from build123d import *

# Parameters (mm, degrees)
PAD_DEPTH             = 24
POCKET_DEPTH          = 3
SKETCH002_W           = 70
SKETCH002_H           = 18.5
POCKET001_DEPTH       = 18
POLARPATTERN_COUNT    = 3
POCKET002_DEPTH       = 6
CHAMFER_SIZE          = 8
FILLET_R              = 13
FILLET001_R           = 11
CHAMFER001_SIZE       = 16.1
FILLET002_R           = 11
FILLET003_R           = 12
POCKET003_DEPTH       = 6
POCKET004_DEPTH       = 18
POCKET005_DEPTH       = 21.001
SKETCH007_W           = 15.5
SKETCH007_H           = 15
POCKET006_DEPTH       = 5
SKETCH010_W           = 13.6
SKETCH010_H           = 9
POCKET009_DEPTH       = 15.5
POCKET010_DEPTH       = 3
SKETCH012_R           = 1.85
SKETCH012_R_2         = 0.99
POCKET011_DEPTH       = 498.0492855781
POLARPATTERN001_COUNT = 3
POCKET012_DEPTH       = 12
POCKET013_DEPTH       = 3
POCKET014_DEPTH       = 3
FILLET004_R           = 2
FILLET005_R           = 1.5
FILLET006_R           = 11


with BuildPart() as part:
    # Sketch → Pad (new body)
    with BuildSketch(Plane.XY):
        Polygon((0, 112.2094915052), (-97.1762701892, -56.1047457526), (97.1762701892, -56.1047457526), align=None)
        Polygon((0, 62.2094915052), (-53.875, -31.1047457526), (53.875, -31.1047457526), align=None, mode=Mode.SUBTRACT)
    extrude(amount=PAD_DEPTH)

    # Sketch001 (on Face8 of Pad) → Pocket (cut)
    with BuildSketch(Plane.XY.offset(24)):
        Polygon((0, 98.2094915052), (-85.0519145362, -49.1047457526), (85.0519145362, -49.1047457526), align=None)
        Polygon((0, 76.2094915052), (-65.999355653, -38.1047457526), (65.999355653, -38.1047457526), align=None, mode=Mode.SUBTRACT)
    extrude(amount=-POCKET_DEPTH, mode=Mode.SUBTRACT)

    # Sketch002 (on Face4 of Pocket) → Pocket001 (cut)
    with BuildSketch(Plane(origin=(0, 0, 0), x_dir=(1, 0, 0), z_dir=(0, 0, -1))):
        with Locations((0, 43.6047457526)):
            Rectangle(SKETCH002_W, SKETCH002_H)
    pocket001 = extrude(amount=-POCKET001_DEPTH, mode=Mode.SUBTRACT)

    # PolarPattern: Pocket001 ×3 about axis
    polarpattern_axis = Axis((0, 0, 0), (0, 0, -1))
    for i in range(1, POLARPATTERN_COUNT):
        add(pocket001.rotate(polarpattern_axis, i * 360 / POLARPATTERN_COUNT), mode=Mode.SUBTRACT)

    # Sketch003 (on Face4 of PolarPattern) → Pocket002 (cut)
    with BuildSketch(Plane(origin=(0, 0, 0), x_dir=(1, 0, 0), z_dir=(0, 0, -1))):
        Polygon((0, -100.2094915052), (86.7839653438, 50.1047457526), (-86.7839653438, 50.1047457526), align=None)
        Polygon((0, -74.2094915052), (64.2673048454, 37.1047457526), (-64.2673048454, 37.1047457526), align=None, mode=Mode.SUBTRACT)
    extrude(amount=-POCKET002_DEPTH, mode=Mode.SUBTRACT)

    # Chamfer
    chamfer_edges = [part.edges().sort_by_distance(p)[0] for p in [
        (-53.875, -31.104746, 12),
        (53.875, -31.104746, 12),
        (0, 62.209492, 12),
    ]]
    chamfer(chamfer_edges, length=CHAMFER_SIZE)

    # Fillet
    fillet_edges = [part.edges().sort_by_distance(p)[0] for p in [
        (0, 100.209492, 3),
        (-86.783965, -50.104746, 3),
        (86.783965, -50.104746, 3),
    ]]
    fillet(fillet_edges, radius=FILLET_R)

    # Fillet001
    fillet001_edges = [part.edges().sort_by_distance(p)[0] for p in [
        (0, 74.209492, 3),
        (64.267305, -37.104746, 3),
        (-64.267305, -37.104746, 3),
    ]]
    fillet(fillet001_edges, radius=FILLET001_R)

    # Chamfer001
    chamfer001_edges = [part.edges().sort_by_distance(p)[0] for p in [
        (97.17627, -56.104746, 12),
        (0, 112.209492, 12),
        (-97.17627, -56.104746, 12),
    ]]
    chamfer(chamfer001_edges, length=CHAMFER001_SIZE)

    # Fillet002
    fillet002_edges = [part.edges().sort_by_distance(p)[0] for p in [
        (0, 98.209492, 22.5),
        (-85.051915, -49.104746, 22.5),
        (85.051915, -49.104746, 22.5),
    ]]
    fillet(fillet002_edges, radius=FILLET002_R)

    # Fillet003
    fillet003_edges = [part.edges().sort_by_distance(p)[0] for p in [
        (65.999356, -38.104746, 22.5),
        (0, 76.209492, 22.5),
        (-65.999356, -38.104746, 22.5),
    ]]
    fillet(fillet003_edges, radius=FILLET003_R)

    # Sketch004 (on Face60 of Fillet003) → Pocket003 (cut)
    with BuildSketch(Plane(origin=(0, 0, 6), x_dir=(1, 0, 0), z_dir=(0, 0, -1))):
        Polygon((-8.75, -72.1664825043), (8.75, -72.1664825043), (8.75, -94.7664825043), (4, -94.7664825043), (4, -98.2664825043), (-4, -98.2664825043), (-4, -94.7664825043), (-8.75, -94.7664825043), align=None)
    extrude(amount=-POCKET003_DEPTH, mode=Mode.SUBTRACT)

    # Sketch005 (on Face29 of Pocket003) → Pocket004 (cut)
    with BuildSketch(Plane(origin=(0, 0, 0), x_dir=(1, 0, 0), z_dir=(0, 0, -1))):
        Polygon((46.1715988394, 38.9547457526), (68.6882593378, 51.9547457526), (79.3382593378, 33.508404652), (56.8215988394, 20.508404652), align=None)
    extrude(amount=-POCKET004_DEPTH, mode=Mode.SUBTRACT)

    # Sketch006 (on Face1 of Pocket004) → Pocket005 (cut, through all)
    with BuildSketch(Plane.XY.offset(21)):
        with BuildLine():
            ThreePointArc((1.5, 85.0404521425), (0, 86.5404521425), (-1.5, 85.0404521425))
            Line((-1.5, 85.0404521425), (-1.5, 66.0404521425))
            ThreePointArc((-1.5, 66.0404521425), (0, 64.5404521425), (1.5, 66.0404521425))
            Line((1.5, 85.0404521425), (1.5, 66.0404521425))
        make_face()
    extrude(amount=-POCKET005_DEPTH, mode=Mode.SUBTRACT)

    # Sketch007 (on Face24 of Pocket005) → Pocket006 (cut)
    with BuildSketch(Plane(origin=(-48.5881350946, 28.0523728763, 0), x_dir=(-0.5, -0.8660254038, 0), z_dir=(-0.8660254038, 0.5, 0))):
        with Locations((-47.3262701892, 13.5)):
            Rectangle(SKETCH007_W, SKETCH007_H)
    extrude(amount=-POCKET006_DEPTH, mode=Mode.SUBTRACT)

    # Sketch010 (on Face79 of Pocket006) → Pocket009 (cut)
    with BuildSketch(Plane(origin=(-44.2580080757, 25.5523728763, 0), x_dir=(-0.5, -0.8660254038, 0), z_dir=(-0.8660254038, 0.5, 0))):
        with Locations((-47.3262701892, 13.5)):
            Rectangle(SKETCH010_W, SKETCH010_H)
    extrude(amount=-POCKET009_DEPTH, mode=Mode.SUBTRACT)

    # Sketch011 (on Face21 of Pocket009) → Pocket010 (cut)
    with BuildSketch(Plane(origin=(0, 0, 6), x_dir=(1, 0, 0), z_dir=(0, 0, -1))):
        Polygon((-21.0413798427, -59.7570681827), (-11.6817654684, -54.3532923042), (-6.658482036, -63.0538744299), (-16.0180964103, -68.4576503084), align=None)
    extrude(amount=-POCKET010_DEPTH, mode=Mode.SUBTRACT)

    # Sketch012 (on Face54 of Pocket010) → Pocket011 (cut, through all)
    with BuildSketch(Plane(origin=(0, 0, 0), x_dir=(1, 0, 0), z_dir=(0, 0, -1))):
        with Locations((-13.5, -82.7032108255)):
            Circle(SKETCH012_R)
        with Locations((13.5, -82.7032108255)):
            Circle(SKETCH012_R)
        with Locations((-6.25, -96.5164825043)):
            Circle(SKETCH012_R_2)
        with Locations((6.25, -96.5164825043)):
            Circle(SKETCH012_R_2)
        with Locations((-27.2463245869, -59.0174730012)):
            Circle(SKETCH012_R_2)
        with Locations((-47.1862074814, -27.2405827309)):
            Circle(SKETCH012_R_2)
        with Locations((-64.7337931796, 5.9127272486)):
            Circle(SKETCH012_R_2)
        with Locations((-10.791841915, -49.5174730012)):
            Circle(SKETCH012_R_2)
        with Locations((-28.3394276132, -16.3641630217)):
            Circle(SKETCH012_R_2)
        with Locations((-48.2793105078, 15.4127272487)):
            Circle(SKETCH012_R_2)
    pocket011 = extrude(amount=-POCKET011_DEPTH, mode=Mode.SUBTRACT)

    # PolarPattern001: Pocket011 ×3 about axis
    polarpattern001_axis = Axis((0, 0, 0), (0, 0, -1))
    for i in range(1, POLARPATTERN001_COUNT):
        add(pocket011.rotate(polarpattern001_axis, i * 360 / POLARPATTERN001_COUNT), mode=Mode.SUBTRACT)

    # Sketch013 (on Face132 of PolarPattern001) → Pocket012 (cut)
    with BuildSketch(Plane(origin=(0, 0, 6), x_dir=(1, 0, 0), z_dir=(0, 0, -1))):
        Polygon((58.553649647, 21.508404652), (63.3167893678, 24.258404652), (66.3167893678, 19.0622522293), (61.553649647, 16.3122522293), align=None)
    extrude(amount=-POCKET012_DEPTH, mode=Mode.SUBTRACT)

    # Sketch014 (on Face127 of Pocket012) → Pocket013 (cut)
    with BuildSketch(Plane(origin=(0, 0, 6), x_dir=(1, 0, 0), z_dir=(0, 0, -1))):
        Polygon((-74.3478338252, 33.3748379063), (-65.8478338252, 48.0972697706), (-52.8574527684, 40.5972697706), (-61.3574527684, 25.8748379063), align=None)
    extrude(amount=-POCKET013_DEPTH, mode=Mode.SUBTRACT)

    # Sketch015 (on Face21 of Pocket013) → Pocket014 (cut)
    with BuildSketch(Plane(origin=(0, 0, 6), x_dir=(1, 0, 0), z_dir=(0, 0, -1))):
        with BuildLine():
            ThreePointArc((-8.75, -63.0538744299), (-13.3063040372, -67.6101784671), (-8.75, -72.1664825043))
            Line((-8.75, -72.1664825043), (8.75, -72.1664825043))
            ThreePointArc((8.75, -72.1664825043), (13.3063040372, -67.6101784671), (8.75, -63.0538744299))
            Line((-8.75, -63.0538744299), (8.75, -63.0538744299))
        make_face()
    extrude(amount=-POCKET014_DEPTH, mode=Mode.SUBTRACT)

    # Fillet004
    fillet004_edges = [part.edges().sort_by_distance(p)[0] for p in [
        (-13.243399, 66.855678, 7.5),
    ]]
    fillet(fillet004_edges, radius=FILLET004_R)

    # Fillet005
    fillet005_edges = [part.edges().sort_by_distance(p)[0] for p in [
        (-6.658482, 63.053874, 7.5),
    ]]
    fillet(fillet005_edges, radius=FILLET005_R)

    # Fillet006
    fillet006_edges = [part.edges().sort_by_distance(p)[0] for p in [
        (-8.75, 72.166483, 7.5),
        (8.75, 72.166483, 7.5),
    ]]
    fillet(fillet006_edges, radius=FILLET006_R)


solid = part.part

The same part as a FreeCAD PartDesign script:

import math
import FreeCAD as App
import Part
import Sketcher

V = App.Vector
Q = App.Units.Quantity


def edges_at(feature, points):
    """Names of the edges that pass closest to the given points."""
    edges = feature.Shape.Edges
    near = lambda p: min(range(len(edges)), key=lambda i: edges[i].distToShape(Part.Vertex(*p))[0])
    return sorted({f"Edge{near(p) + 1}" for p in points})


def add_polygon(sketch, points):
    """Adds a closed chain of lines whose ends are joined by coincident constraints."""
    first, n = sketch.GeometryCount, len(points)
    for a, b in zip(points, points[1:] + points[:1]):
        sketch.addGeometry(Part.LineSegment(App.Vector(*a, 0), App.Vector(*b, 0)), False)
    for i in range(n):
        sketch.addConstraint(Sketcher.Constraint("Coincident", first + i, 2, first + (i + 1) % n, 1))

doc = App.newDocument("Part")
body = doc.addObject("PartDesign::Body", "Body")

# Sketch on XY plane
sketch1 = doc.addObject("Sketcher::SketchObject", "Sketch")
body.addObject(sketch1)
sketch1.AttachmentSupport = (doc.XY_Plane, [""])
sketch1.MapMode = "FlatFace"
add_polygon(sketch1, [(0, 112), (-97, -56), (97, -56)])  # lines 0-2
add_polygon(sketch1, [(-54, -31), (0, 62), (54, -31)])  # lines 3-5
sketch1.addConstraint(Sketcher.Constraint("Horizontal", 1))
sketch1.addConstraint(Sketcher.Constraint("Horizontal", 5))
sketch1.addConstraint(Sketcher.Constraint("PointOnObject", 2, 2, -2))
sketch1.addConstraint(Sketcher.Constraint("PointOnObject", 3, 2, -2))
sketch1.addConstraint(Sketcher.Constraint("Parallel", 0, 3))
sketch1.addConstraint(Sketcher.Constraint("Parallel", 2, 4))
sketch1.addConstraint(Sketcher.Constraint("Equal", 0, 2))
sketch1.addConstraint(Sketcher.Constraint("Angle", 0, Q("-120 deg")))
sketch1.addConstraint(Sketcher.Constraint("DistanceY", 3, 2, 2, 2, Q("50 mm")))
sketch1.addConstraint(Sketcher.Constraint("DistanceY", 1, 2, 4, 2, Q("25 mm")))
sketch1.addConstraint(Sketcher.Constraint("DistanceX", 5, 2, 5, 1, Q("107.75 mm")))
sketch1.addConstraint(Sketcher.Constraint("DistanceY", -1, 1, 2, 2, Q("112.209492 mm")))
pad1 = doc.addObject("PartDesign::Pad", "Pad")
body.addObject(pad1)
pad1.Profile = sketch1
pad1.Length = 24

# Sketch on XY plane
sketch2 = doc.addObject("Sketcher::SketchObject", "Sketch001")
body.addObject(sketch2)
sketch2.AttachmentSupport = (doc.XY_Plane, [""])
sketch2.MapMode = "FlatFace"
sketch2.AttachmentOffset = App.Placement(V(0, 0, 24), App.Rotation())
add_polygon(sketch2, [(0, 98), (-85, -49), (85, -49)])  # lines 0-2
add_polygon(sketch2, [(-66, -38), (0, 76), (66, -38)])  # lines 3-5
sketch2.addConstraint(Sketcher.Constraint("Horizontal", 1))
sketch2.addConstraint(Sketcher.Constraint("Horizontal", 5))
sketch2.addConstraint(Sketcher.Constraint("PointOnObject", 2, 2, -2))
sketch2.addConstraint(Sketcher.Constraint("PointOnObject", 3, 2, -2))
sketch2.addConstraint(Sketcher.Constraint("Parallel", 0, 3))
sketch2.addConstraint(Sketcher.Constraint("Parallel", 2, 4))
sketch2.addConstraint(Sketcher.Constraint("Equal", 0, 2))
sketch2.addConstraint(Sketcher.Constraint("Angle", 0, Q("-120 deg")))
sketch2.addConstraint(Sketcher.Constraint("DistanceY", 3, 2, 2, 2, Q("22 mm")))
sketch2.addConstraint(Sketcher.Constraint("DistanceY", 1, 2, 4, 2, Q("11 mm")))
sketch2.addConstraint(Sketcher.Constraint("DistanceX", 1, 1, 1, 2, Q("170.103829 mm")))
sketch2.addConstraint(Sketcher.Constraint("DistanceY", -1, 1, 2, 2, Q("98.209492 mm")))
pocket1 = doc.addObject("PartDesign::Pocket", "Pocket")
body.addObject(pocket1)
pocket1.Profile = sketch2
pocket1.Length = 3

# Sketch on XY plane
sketch3 = doc.addObject("Sketcher::SketchObject", "Sketch002")
body.addObject(sketch3)
sketch3.AttachmentSupport = (doc.XY_Plane, [""])
sketch3.MapMode = "FlatFace"
add_polygon(sketch3, [(-35, -53), (-35, -34), (35, -34), (35, -53)])  # lines 0-3
sketch3.addConstraint(Sketcher.Constraint("Vertical", 0))
sketch3.addConstraint(Sketcher.Constraint("Horizontal", 1))
sketch3.addConstraint(Sketcher.Constraint("Vertical", 2))
sketch3.addConstraint(Sketcher.Constraint("Horizontal", 3))
sketch3.addConstraint(Sketcher.Constraint("DistanceX", 1, 1, 1, 2, Q("70 mm")))
sketch3.addConstraint(Sketcher.Constraint("DistanceY", 0, 1, 0, 2, Q("18.5 mm")))
sketch3.addConstraint(Sketcher.Constraint("DistanceX", 0, 2, -1, 1, Q("35 mm")))
sketch3.addConstraint(Sketcher.Constraint("DistanceY", 0, 2, -1, 1, Q("34.354746 mm")))
pocket2 = doc.addObject("PartDesign::Pocket", "Pocket001")
body.addObject(pocket2)
pocket2.Profile = sketch3
pocket2.Length = 18
pocket2.Reversed = True
doc.recompute()

polarpattern = doc.addObject("PartDesign::PolarPattern", "PolarPattern")
body.addObject(polarpattern)
polarpattern.Originals = [pocket2]
polarpattern.Axis = (doc.Z_Axis, [""])
polarpattern.Angle = 360
polarpattern.Occurrences = 3
body.Tip = polarpattern

# Sketch on XY plane
sketch4 = doc.addObject("Sketcher::SketchObject", "Sketch003")
body.addObject(sketch4)
sketch4.AttachmentSupport = (doc.XY_Plane, [""])
sketch4.MapMode = "FlatFace"
add_polygon(sketch4, [(0, 100), (87, -50), (-87, -50)])  # lines 0-2
add_polygon(sketch4, [(64, -37), (0, 74), (-64, -37)])  # lines 3-5
sketch4.addConstraint(Sketcher.Constraint("Horizontal", 1))
sketch4.addConstraint(Sketcher.Constraint("Horizontal", 5))
sketch4.addConstraint(Sketcher.Constraint("PointOnObject", 2, 2, -2))
sketch4.addConstraint(Sketcher.Constraint("PointOnObject", 3, 2, -2))
sketch4.addConstraint(Sketcher.Constraint("Parallel", 0, 3))
sketch4.addConstraint(Sketcher.Constraint("Parallel", 2, 4))
sketch4.addConstraint(Sketcher.Constraint("Equal", 0, 2))
sketch4.addConstraint(Sketcher.Constraint("Angle", 0, Q("-60 deg")))
sketch4.addConstraint(Sketcher.Constraint("DistanceY", 3, 2, 2, 2, Q("26 mm")))
sketch4.addConstraint(Sketcher.Constraint("DistanceY", 1, 2, 4, 2, Q("13 mm")))
sketch4.addConstraint(Sketcher.Constraint("DistanceX", 1, 2, 1, 1, Q("173.567931 mm")))
sketch4.addConstraint(Sketcher.Constraint("DistanceY", -1, 1, 2, 2, Q("100.209492 mm")))
pocket3 = doc.addObject("PartDesign::Pocket", "Pocket002")
body.addObject(pocket3)
pocket3.Profile = sketch4
pocket3.Length = 6
pocket3.Reversed = True
doc.recompute()

chamfer = doc.addObject("PartDesign::Chamfer", "Chamfer")
body.addObject(chamfer)
chamfer.Base = (pocket3, edges_at(pocket3, [(-53.875, -31.105, 12), (53.875, -31.105, 12), (0, 62.209, 12)]))
chamfer.Size = 8
doc.recompute()

fillet = doc.addObject("PartDesign::Fillet", "Fillet")
body.addObject(fillet)
fillet.Base = (chamfer, edges_at(chamfer, [(0, 100.209, 3), (-86.784, -50.105, 3), (86.784, -50.105, 3)]))
fillet.Radius = 13
doc.recompute()

fillet2 = doc.addObject("PartDesign::Fillet", "Fillet001")
body.addObject(fillet2)
fillet2.Base = (fillet, edges_at(fillet, [(0, 74.209, 3), (64.267, -37.105, 3), (-64.267, -37.105, 3)]))
fillet2.Radius = 11
doc.recompute()

chamfer2 = doc.addObject("PartDesign::Chamfer", "Chamfer001")
body.addObject(chamfer2)
chamfer2.Base = (fillet2, edges_at(fillet2, [(97.176, -56.105, 12), (0, 112.209, 12), (-97.176, -56.105, 12)]))
chamfer2.Size = 16.1
doc.recompute()

fillet3 = doc.addObject("PartDesign::Fillet", "Fillet002")
body.addObject(fillet3)
fillet3.Base = (chamfer2, edges_at(chamfer2, [(0, 98.209, 22.5), (-85.052, -49.105, 22.5), (85.052, -49.105, 22.5)]))
fillet3.Radius = 11
doc.recompute()

fillet4 = doc.addObject("PartDesign::Fillet", "Fillet003")
body.addObject(fillet4)
fillet4.Base = (fillet3, edges_at(fillet3, [(65.999, -38.105, 22.5), (0, 76.209, 22.5), (-65.999, -38.105, 22.5)]))
fillet4.Radius = 12

# Sketch on XY plane
sketch5 = doc.addObject("Sketcher::SketchObject", "Sketch004")
body.addObject(sketch5)
sketch5.AttachmentSupport = (doc.XY_Plane, [""])
sketch5.MapMode = "FlatFace"
sketch5.AttachmentOffset = App.Placement(V(0, 0, 6), App.Rotation())
add_polygon(sketch5, [(8.8, 72.2), (-8.8, 72.2), (-8.8, 94.8), (-4, 94.8), (-4, 98.3), (4, 98.3), (4, 94.8), (8.8, 94.8)])  # lines 0-7
sketch5.addConstraint(Sketcher.Constraint("Horizontal", 0))
sketch5.addConstraint(Sketcher.Constraint("Vertical", 1))
sketch5.addConstraint(Sketcher.Constraint("Horizontal", 2))
sketch5.addConstraint(Sketcher.Constraint("Vertical", 3))
sketch5.addConstraint(Sketcher.Constraint("Horizontal", 4))
sketch5.addConstraint(Sketcher.Constraint("Vertical", 5))
sketch5.addConstraint(Sketcher.Constraint("Horizontal", 6))
sketch5.addConstraint(Sketcher.Constraint("Vertical", 7))
sketch5.addConstraint(Sketcher.Constraint("Symmetric", 2, 2, 5, 2, -2))
sketch5.addConstraint(Sketcher.Constraint("Equal", 2, 6))
sketch5.addConstraint(Sketcher.Constraint("DistanceX", 4, 1, 4, 2, Q("8 mm")))
sketch5.addConstraint(Sketcher.Constraint("DistanceX", 0, 2, 0, 1, Q("17.5 mm")))
sketch5.addConstraint(Sketcher.Constraint("DistanceY", 1, 1, 1, 2, Q("22.6 mm")))
sketch5.addConstraint(Sketcher.Constraint("DistanceY", 3, 1, 3, 2, Q("3.5 mm")))
sketch5.addConstraint(Sketcher.Constraint("DistanceY", -1, 1, 0, 2, Q("72.166483 mm")))
pocket4 = doc.addObject("PartDesign::Pocket", "Pocket003")
body.addObject(pocket4)
pocket4.Profile = sketch5
pocket4.Length = 6
pocket4.Reversed = True

# Sketch on XY plane
sketch6 = doc.addObject("Sketcher::SketchObject", "Sketch005")
body.addObject(sketch6)
sketch6.AttachmentSupport = (doc.XY_Plane, [""])
sketch6.MapMode = "FlatFace"
add_polygon(sketch6, [(69, -52), (46, -39), (57, -21), (79, -34)])  # lines 0-3
sketch6.addConstraint(Sketcher.Constraint("Perpendicular", 0, 1))
sketch6.addConstraint(Sketcher.Constraint("Perpendicular", 1, 2))
sketch6.addConstraint(Sketcher.Constraint("Perpendicular", 2, 3))
sketch6.addConstraint(Sketcher.Constraint("Angle", 0, Q("150 deg")))
sketch6.addConstraint(Sketcher.Constraint("Distance", 0, Q("26 mm")))
sketch6.addConstraint(Sketcher.Constraint("Distance", 1, Q("21.3 mm")))
sketch6.addConstraint(Sketcher.Constraint("DistanceX", -1, 1, 0, 2, Q("46.171599 mm")))
sketch6.addConstraint(Sketcher.Constraint("DistanceY", 0, 2, -1, 1, Q("38.954746 mm")))
pocket5 = doc.addObject("PartDesign::Pocket", "Pocket004")
body.addObject(pocket5)
pocket5.Profile = sketch6
pocket5.Length = 18
pocket5.Reversed = True

# Sketch on XY plane
sketch7 = doc.addObject("Sketcher::SketchObject", "Sketch006")
body.addObject(sketch7)
sketch7.AttachmentSupport = (doc.XY_Plane, [""])
sketch7.MapMode = "FlatFace"
sketch7.AttachmentOffset = App.Placement(V(0, 0, 21), App.Rotation())
sketch7.addGeometry(Part.ArcOfCircle(Part.Circle(V(0, 85, 0), V(0, 0, 1), 1.5), math.radians(0), math.radians(180)), False)
sketch7.addGeometry(Part.LineSegment(V(-1.5, 85, 0), V(-1.5, 66, 0)), False)
sketch7.addGeometry(Part.ArcOfCircle(Part.Circle(V(0, 66, 0), V(0, 0, 1), 1.5), math.radians(180), math.radians(360)), False)
sketch7.addGeometry(Part.LineSegment(V(1.5, 66, 0), V(1.5, 85, 0)), False)
sketch7.addConstraint(Sketcher.Constraint("Tangent", 0, 2, 1, 1))
sketch7.addConstraint(Sketcher.Constraint("Tangent", 1, 2, 2, 1))
sketch7.addConstraint(Sketcher.Constraint("Tangent", 2, 2, 3, 1))
sketch7.addConstraint(Sketcher.Constraint("Tangent", 3, 2, 0, 1))
sketch7.addConstraint(Sketcher.Constraint("Vertical", 1))
sketch7.addConstraint(Sketcher.Constraint("Vertical", 3))
sketch7.addConstraint(Sketcher.Constraint("PointOnObject", 0, 3, -2))
sketch7.addConstraint(Sketcher.Constraint("Radius", 0, Q("1.5 mm")))
sketch7.addConstraint(Sketcher.Constraint("DistanceY", 1, 2, 1, 1, Q("19 mm")))
sketch7.addConstraint(Sketcher.Constraint("DistanceY", -1, 1, 0, 3, Q("85.040452 mm")))
pocket6 = doc.addObject("PartDesign::Pocket", "Pocket005")
body.addObject(pocket6)
pocket6.Profile = sketch7
pocket6.Type = "ThroughAll"

# Sketch on an angled plane
sketch8 = doc.addObject("Sketcher::SketchObject", "Sketch007")
body.addObject(sketch8)
sketch8.Placement = App.Placement(V(-48.588135, 28.052373, 0), App.Rotation(V(-0.5, -0.866025404, 0), V(0, 0, 1), V(-0.866025404, 0.5, 0), "ZXY"))
add_polygon(sketch8, [(-55, 21), (-55, 6), (-40, 6), (-40, 21)])  # lines 0-3
sketch8.addConstraint(Sketcher.Constraint("Vertical", 0))
sketch8.addConstraint(Sketcher.Constraint("Horizontal", 1))
sketch8.addConstraint(Sketcher.Constraint("Vertical", 2))
sketch8.addConstraint(Sketcher.Constraint("Horizontal", 3))
sketch8.addConstraint(Sketcher.Constraint("DistanceY", 0, 2, 0, 1, Q("15 mm")))
sketch8.addConstraint(Sketcher.Constraint("DistanceX", 1, 1, 1, 2, Q("15.5 mm")))
sketch8.addConstraint(Sketcher.Constraint("DistanceY", -1, 1, 0, 2, Q("6 mm")))
sketch8.addConstraint(Sketcher.Constraint("DistanceX", 0, 2, -1, 1, Q("55.07627 mm")))
pocket7 = doc.addObject("PartDesign::Pocket", "Pocket006")
body.addObject(pocket7)
pocket7.Profile = sketch8
pocket7.Length = 5

# Sketch on an angled plane
sketch9 = doc.addObject("Sketcher::SketchObject", "Sketch008")
body.addObject(sketch9)
sketch9.Placement = App.Placement(V(-44.258008, 25.552373, 0), App.Rotation(V(-0.5, -0.866025404, 0), V(0, 0, 1), V(-0.866025404, 0.5, 0), "ZXY"))
add_polygon(sketch9, [(-54, 18), (-54, 9), (-41, 9), (-41, 18)])  # lines 0-3
sketch9.addConstraint(Sketcher.Constraint("Vertical", 0))
sketch9.addConstraint(Sketcher.Constraint("Horizontal", 1))
sketch9.addConstraint(Sketcher.Constraint("Vertical", 2))
sketch9.addConstraint(Sketcher.Constraint("Horizontal", 3))
sketch9.addConstraint(Sketcher.Constraint("DistanceY", 0, 2, 0, 1, Q("9 mm")))
sketch9.addConstraint(Sketcher.Constraint("DistanceX", 1, 1, 1, 2, Q("13.6 mm")))
sketch9.addConstraint(Sketcher.Constraint("DistanceY", -1, 1, 0, 2, Q("9 mm")))
sketch9.addConstraint(Sketcher.Constraint("DistanceX", 0, 2, -1, 1, Q("54.12627 mm")))
pocket8 = doc.addObject("PartDesign::Pocket", "Pocket007")
body.addObject(pocket8)
pocket8.Profile = sketch9
pocket8.Length = 15.5

# Sketch on XY plane
sketch10 = doc.addObject("Sketcher::SketchObject", "Sketch009")
body.addObject(sketch10)
sketch10.AttachmentSupport = (doc.XY_Plane, [""])
sketch10.MapMode = "FlatFace"
sketch10.AttachmentOffset = App.Placement(V(0, 0, 6), App.Rotation())
add_polygon(sketch10, [(-12, 54), (-21, 60), (-16, 68), (-7, 63)])  # lines 0-3
sketch10.addConstraint(Sketcher.Constraint("Perpendicular", 0, 1))
sketch10.addConstraint(Sketcher.Constraint("Perpendicular", 1, 2))
sketch10.addConstraint(Sketcher.Constraint("Perpendicular", 2, 3))
sketch10.addConstraint(Sketcher.Constraint("Angle", 0, Q("150 deg")))
sketch10.addConstraint(Sketcher.Constraint("Distance", 0, Q("10.807552 mm")))
sketch10.addConstraint(Sketcher.Constraint("DistanceX", 0, 2, -1, 1, Q("21.04138 mm")))
sketch10.addConstraint(Sketcher.Constraint("DistanceY", -1, 1, 0, 2, Q("59.757068 mm")))
sketch10.addConstraint(Sketcher.Constraint("DistanceY", -1, 1, 1, 2, Q("68.45765 mm")))
pocket9 = doc.addObject("PartDesign::Pocket", "Pocket008")
body.addObject(pocket9)
pocket9.Profile = sketch10
pocket9.Length = 3
pocket9.Reversed = True

# Sketch on XY plane
sketch11 = doc.addObject("Sketcher::SketchObject", "Sketch010")
body.addObject(sketch11)
sketch11.AttachmentSupport = (doc.XY_Plane, [""])
sketch11.MapMode = "FlatFace"
sketch11.addGeometry(Part.Circle(V(-13.5, 82.7, 0), V(0, 0, 1), 1.9), False)
sketch11.addGeometry(Part.Circle(V(13.5, 82.7, 0), V(0, 0, 1), 1.9), False)
sketch11.addGeometry(Part.Circle(V(-6.2, 96.5, 0), V(0, 0, 1), 1), False)
sketch11.addGeometry(Part.Circle(V(6.2, 96.5, 0), V(0, 0, 1), 1), False)
sketch11.addGeometry(Part.Circle(V(-27.2, 59, 0), V(0, 0, 1), 1), False)
sketch11.addGeometry(Part.Circle(V(-47.2, 27.2, 0), V(0, 0, 1), 1), False)
sketch11.addGeometry(Part.Circle(V(-64.7, -5.9, 0), V(0, 0, 1), 1), False)
sketch11.addGeometry(Part.Circle(V(-10.8, 49.5, 0), V(0, 0, 1), 1), False)
sketch11.addGeometry(Part.Circle(V(-28.3, 16.4, 0), V(0, 0, 1), 1), False)
sketch11.addGeometry(Part.Circle(V(-48.3, -15.4, 0), V(0, 0, 1), 1), False)
sketch11.addConstraint(Sketcher.Constraint("Equal", 0, 1))
sketch11.addConstraint(Sketcher.Constraint("Equal", 2, 3))
sketch11.addConstraint(Sketcher.Constraint("Equal", 3, 4))
sketch11.addConstraint(Sketcher.Constraint("Equal", 4, 5))
sketch11.addConstraint(Sketcher.Constraint("Equal", 5, 6))
sketch11.addConstraint(Sketcher.Constraint("Equal", 6, 7))
sketch11.addConstraint(Sketcher.Constraint("Equal", 7, 8))
sketch11.addConstraint(Sketcher.Constraint("Equal", 8, 9))
sketch11.addConstraint(Sketcher.Constraint("Symmetric", 0, 3, 1, 3, -2))
sketch11.addConstraint(Sketcher.Constraint("Symmetric", 2, 3, 3, 3, -2))
sketch11.addConstraint(Sketcher.Constraint("Diameter", 0, Q("3.7 mm")))
sketch11.addConstraint(Sketcher.Constraint("Diameter", 2, Q("1.98 mm")))
sketch11.addConstraint(Sketcher.Constraint("DistanceX", 0, 3, 1, 3, Q("27 mm")))
sketch11.addConstraint(Sketcher.Constraint("DistanceX", 2, 3, 3, 3, Q("12.5 mm")))
sketch11.addConstraint(Sketcher.Constraint("DistanceY", 7, 3, 4, 3, Q("9.5 mm")))
sketch11.addConstraint(Sketcher.Constraint("DistanceY", 9, 3, 6, 3, Q("9.5 mm")))
sketch11.addConstraint(Sketcher.Constraint("DistanceY", 5, 3, 2, 3, Q("69.2759 mm")))
sketch11.addConstraint(Sketcher.Constraint("DistanceY", 6, 3, 4, 3, Q("64.9302 mm")))
sketch11.addConstraint(Sketcher.Constraint("DistanceY", -1, 1, 0, 3, Q("82.703211 mm")))
sketch11.addConstraint(Sketcher.Constraint("DistanceX", 7, 3, -1, 1, Q("10.791842 mm")))
sketch11.addConstraint(Sketcher.Constraint("DistanceX", 9, 3, -1, 1, Q("48.279311 mm")))
sketch11.addConstraint(Sketcher.Constraint("DistanceY", 0, 3, 2, 3, Q("13.813272 mm")))
sketch11.addConstraint(Sketcher.Constraint("DistanceY", 4, 3, 2, 3, Q("37.49901 mm")))
sketch11.addConstraint(Sketcher.Constraint("DistanceX", 6, 3, 4, 3, Q("37.487469 mm")))
sketch11.addConstraint(Sketcher.Constraint("DistanceX", 5, 3, 8, 3, Q("18.84678 mm")))
sketch11.addConstraint(Sketcher.Constraint("DistanceY", 8, 3, 5, 3, Q("10.87642 mm")))
sketch11.addConstraint(Sketcher.Constraint("DistanceX", 4, 3, -1, 1, Q("27.246325 mm")))
sketch11.addConstraint(Sketcher.Constraint("DistanceX", 5, 3, -1, 1, Q("47.186207 mm")))
pocket10 = doc.addObject("PartDesign::Pocket", "Pocket009")
body.addObject(pocket10)
pocket10.Profile = sketch11
pocket10.Type = "ThroughAll"
pocket10.Reversed = True
doc.recompute()

polarpattern2 = doc.addObject("PartDesign::PolarPattern", "PolarPattern001")
body.addObject(polarpattern2)
polarpattern2.Originals = [pocket10]
polarpattern2.Axis = (doc.Z_Axis, [""])
polarpattern2.Angle = 360
polarpattern2.Occurrences = 3
body.Tip = polarpattern2

# Sketch on XY plane
sketch12 = doc.addObject("Sketcher::SketchObject", "Sketch011")
body.addObject(sketch12)
sketch12.AttachmentSupport = (doc.XY_Plane, [""])
sketch12.MapMode = "FlatFace"
sketch12.AttachmentOffset = App.Placement(V(0, 0, 6), App.Rotation())
add_polygon(sketch12, [(63, -24), (59, -22), (62, -16), (66, -19)])  # lines 0-3
sketch12.addConstraint(Sketcher.Constraint("Perpendicular", 0, 1))
sketch12.addConstraint(Sketcher.Constraint("Perpendicular", 1, 2))
sketch12.addConstraint(Sketcher.Constraint("Perpendicular", 2, 3))
sketch12.addConstraint(Sketcher.Constraint("Angle", 0, Q("150 deg")))
sketch12.addConstraint(Sketcher.Constraint("Distance", 1, Q("6 mm")))
sketch12.addConstraint(Sketcher.Constraint("Distance", 0, Q("5.5 mm")))
sketch12.addConstraint(Sketcher.Constraint("DistanceX", -1, 1, 0, 2, Q("58.55365 mm")))
sketch12.addConstraint(Sketcher.Constraint("DistanceY", 0, 2, -1, 1, Q("21.508405 mm")))
pocket11 = doc.addObject("PartDesign::Pocket", "Pocket010")
body.addObject(pocket11)
pocket11.Profile = sketch12
pocket11.Length = 12
pocket11.Reversed = True

# Sketch on XY plane
sketch13 = doc.addObject("Sketcher::SketchObject", "Sketch012")
body.addObject(sketch13)
sketch13.AttachmentSupport = (doc.XY_Plane, [""])
sketch13.MapMode = "FlatFace"
sketch13.AttachmentOffset = App.Placement(V(0, 0, 6), App.Rotation())
add_polygon(sketch13, [(-66, -48), (-74, -33), (-61, -26), (-53, -41)])  # lines 0-3
sketch13.addConstraint(Sketcher.Constraint("Perpendicular", 0, 1))
sketch13.addConstraint(Sketcher.Constraint("Perpendicular", 1, 2))
sketch13.addConstraint(Sketcher.Constraint("Perpendicular", 2, 3))
sketch13.addConstraint(Sketcher.Constraint("Angle", 0, Q("120 deg")))
sketch13.addConstraint(Sketcher.Constraint("Distance", 0, Q("17 mm")))
sketch13.addConstraint(Sketcher.Constraint("Distance", 1, Q("15 mm")))
sketch13.addConstraint(Sketcher.Constraint("DistanceY", 2, 2, -1, 1, Q("40.59727 mm")))
sketch13.addConstraint(Sketcher.Constraint("DistanceX", 0, 2, -1, 1, Q("74.347834 mm")))
pocket12 = doc.addObject("PartDesign::Pocket", "Pocket011")
body.addObject(pocket12)
pocket12.Profile = sketch13
pocket12.Length = 3
pocket12.Reversed = True

# Sketch on XY plane
sketch14 = doc.addObject("Sketcher::SketchObject", "Sketch013")
body.addObject(sketch14)
sketch14.AttachmentSupport = (doc.XY_Plane, [""])
sketch14.MapMode = "FlatFace"
sketch14.AttachmentOffset = App.Placement(V(0, 0, 6), App.Rotation())
sketch14.addGeometry(Part.ArcOfCircle(Part.Circle(V(-8.8, 67.6, 0), V(0, 0, 1), 4.6), math.radians(90), math.radians(270)), False)
sketch14.addGeometry(Part.LineSegment(V(-8.8, 72.2, 0), V(8.8, 72.2, 0)), False)
sketch14.addGeometry(Part.ArcOfCircle(Part.Circle(V(8.8, 67.6, 0), V(0, 0, 1), 4.6), math.radians(-90), math.radians(90)), False)
sketch14.addGeometry(Part.LineSegment(V(8.8, 63.1, 0), V(-8.8, 63.1, 0)), False)
sketch14.addConstraint(Sketcher.Constraint("Tangent", 0, 1, 1, 1))
sketch14.addConstraint(Sketcher.Constraint("Tangent", 1, 2, 2, 2))
sketch14.addConstraint(Sketcher.Constraint("Tangent", 2, 1, 3, 1))
sketch14.addConstraint(Sketcher.Constraint("Tangent", 3, 2, 0, 2))
sketch14.addConstraint(Sketcher.Constraint("Horizontal", 1))
sketch14.addConstraint(Sketcher.Constraint("Horizontal", 3))
sketch14.addConstraint(Sketcher.Constraint("DistanceX", 1, 1, 1, 2, Q("17.5 mm")))
sketch14.addConstraint(Sketcher.Constraint("DistanceX", 0, 3, -1, 1, Q("8.75 mm")))
sketch14.addConstraint(Sketcher.Constraint("Radius", 0, Q("4.556304 mm")))
sketch14.addConstraint(Sketcher.Constraint("DistanceY", -1, 1, 0, 3, Q("67.610178 mm")))
pocket13 = doc.addObject("PartDesign::Pocket", "Pocket012")
body.addObject(pocket13)
pocket13.Profile = sketch14
pocket13.Length = 3
pocket13.Reversed = True
doc.recompute()

fillet5 = doc.addObject("PartDesign::Fillet", "Fillet004")
body.addObject(fillet5)
fillet5.Base = (pocket13, edges_at(pocket13, [(-13.243, 66.856, 7.5)]))
fillet5.Radius = 2
doc.recompute()

fillet6 = doc.addObject("PartDesign::Fillet", "Fillet005")
body.addObject(fillet6)
fillet6.Base = (fillet5, edges_at(fillet5, [(-6.658, 63.054, 7.5)]))
fillet6.Radius = 1.5
doc.recompute()

fillet7 = doc.addObject("PartDesign::Fillet", "Fillet006")
body.addObject(fillet7)
fillet7.Base = (fillet6, edges_at(fillet6, [(-8.75, 72.166, 7.5), (8.75, 72.166, 7.5)]))
fillet7.Radius = 11

doc.recompute()
